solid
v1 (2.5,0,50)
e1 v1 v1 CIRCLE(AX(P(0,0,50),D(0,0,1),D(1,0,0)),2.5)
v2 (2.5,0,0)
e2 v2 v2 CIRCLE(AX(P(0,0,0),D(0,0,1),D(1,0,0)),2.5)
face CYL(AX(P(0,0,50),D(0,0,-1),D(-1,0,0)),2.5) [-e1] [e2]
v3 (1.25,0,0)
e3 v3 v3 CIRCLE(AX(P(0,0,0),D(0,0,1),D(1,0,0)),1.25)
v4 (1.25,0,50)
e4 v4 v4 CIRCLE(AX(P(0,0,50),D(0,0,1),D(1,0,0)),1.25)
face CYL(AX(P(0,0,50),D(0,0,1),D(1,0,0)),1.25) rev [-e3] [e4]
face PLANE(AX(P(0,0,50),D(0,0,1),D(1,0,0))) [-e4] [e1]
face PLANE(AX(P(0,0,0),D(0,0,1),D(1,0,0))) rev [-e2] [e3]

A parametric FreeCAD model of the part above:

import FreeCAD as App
import Part
import Sketcher

V = App.Vector
Q = App.Units.Quantity

doc = App.newDocument("Part")
params = doc.addObject("Spreadsheet::Sheet", "Params")
for row, (alias, value) in enumerate([
    ("sketch1_diameter", "5 mm"),
    ("pad1_length", "50 mm"),
    ("sketch2_diameter", "2.5 mm"),
    ("hole_diameter", "2.5 mm"),
], start=1):
    params.set(f"A{row}", alias)
    params.set(f"B{row}", "=" + value)
    params.setAlias(f"B{row}", alias)

body = doc.addObject("PartDesign::Body", "Body")

sketch1 = doc.addObject("Sketcher::SketchObject", "Sketch")
body.addObject(sketch1)
sketch1.AttachmentSupport = (doc.XY_Plane, [""])
sketch1.MapMode = "FlatFace"
sketch1.addGeometry(Part.Circle(V(0, 0, 0), V(0, 0, 1), 2.5), False)
sketch1.addConstraint(Sketcher.Constraint("Coincident", 0, 3, -1, 1))
sketch1.addConstraint(Sketcher.Constraint("Diameter", 0, Q("5 mm")))
sketch1.setExpression("Constraints[1]", "Params.sketch1_diameter")
pad1 = doc.addObject("PartDesign::Pad", "Pad")
body.addObject(pad1)
pad1.Profile = sketch1
pad1.setExpression("Length", "Params.pad1_length")

sketch2 = doc.addObject("Sketcher::SketchObject", "Sketch001")
body.addObject(sketch2)
sketch2.AttachmentSupport = (doc.XY_Plane, [""])
sketch2.MapMode = "FlatFace"
sketch2.AttachmentOffset = App.Placement(V(0, 0, 50), App.Rotation())
sketch2.addGeometry(Part.Circle(V(0, 0, 0), V(0, 0, 1), 1.2), False)
sketch2.addConstraint(Sketcher.Constraint("Coincident", 0, 3, -1, 1))
sketch2.addConstraint(Sketcher.Constraint("Diameter", 0, Q("2.5 mm")))
sketch2.setExpression("Constraints[1]", "Params.sketch2_diameter")
doc.recompute()
hole = doc.addObject("PartDesign::Hole", "Hole")
body.addObject(hole)
hole.Profile = sketch2
hole.ThreadType = "None"
hole.setExpression("Diameter", "Params.hole_diameter")
hole.DepthType = "ThroughAll"

doc.recompute()
